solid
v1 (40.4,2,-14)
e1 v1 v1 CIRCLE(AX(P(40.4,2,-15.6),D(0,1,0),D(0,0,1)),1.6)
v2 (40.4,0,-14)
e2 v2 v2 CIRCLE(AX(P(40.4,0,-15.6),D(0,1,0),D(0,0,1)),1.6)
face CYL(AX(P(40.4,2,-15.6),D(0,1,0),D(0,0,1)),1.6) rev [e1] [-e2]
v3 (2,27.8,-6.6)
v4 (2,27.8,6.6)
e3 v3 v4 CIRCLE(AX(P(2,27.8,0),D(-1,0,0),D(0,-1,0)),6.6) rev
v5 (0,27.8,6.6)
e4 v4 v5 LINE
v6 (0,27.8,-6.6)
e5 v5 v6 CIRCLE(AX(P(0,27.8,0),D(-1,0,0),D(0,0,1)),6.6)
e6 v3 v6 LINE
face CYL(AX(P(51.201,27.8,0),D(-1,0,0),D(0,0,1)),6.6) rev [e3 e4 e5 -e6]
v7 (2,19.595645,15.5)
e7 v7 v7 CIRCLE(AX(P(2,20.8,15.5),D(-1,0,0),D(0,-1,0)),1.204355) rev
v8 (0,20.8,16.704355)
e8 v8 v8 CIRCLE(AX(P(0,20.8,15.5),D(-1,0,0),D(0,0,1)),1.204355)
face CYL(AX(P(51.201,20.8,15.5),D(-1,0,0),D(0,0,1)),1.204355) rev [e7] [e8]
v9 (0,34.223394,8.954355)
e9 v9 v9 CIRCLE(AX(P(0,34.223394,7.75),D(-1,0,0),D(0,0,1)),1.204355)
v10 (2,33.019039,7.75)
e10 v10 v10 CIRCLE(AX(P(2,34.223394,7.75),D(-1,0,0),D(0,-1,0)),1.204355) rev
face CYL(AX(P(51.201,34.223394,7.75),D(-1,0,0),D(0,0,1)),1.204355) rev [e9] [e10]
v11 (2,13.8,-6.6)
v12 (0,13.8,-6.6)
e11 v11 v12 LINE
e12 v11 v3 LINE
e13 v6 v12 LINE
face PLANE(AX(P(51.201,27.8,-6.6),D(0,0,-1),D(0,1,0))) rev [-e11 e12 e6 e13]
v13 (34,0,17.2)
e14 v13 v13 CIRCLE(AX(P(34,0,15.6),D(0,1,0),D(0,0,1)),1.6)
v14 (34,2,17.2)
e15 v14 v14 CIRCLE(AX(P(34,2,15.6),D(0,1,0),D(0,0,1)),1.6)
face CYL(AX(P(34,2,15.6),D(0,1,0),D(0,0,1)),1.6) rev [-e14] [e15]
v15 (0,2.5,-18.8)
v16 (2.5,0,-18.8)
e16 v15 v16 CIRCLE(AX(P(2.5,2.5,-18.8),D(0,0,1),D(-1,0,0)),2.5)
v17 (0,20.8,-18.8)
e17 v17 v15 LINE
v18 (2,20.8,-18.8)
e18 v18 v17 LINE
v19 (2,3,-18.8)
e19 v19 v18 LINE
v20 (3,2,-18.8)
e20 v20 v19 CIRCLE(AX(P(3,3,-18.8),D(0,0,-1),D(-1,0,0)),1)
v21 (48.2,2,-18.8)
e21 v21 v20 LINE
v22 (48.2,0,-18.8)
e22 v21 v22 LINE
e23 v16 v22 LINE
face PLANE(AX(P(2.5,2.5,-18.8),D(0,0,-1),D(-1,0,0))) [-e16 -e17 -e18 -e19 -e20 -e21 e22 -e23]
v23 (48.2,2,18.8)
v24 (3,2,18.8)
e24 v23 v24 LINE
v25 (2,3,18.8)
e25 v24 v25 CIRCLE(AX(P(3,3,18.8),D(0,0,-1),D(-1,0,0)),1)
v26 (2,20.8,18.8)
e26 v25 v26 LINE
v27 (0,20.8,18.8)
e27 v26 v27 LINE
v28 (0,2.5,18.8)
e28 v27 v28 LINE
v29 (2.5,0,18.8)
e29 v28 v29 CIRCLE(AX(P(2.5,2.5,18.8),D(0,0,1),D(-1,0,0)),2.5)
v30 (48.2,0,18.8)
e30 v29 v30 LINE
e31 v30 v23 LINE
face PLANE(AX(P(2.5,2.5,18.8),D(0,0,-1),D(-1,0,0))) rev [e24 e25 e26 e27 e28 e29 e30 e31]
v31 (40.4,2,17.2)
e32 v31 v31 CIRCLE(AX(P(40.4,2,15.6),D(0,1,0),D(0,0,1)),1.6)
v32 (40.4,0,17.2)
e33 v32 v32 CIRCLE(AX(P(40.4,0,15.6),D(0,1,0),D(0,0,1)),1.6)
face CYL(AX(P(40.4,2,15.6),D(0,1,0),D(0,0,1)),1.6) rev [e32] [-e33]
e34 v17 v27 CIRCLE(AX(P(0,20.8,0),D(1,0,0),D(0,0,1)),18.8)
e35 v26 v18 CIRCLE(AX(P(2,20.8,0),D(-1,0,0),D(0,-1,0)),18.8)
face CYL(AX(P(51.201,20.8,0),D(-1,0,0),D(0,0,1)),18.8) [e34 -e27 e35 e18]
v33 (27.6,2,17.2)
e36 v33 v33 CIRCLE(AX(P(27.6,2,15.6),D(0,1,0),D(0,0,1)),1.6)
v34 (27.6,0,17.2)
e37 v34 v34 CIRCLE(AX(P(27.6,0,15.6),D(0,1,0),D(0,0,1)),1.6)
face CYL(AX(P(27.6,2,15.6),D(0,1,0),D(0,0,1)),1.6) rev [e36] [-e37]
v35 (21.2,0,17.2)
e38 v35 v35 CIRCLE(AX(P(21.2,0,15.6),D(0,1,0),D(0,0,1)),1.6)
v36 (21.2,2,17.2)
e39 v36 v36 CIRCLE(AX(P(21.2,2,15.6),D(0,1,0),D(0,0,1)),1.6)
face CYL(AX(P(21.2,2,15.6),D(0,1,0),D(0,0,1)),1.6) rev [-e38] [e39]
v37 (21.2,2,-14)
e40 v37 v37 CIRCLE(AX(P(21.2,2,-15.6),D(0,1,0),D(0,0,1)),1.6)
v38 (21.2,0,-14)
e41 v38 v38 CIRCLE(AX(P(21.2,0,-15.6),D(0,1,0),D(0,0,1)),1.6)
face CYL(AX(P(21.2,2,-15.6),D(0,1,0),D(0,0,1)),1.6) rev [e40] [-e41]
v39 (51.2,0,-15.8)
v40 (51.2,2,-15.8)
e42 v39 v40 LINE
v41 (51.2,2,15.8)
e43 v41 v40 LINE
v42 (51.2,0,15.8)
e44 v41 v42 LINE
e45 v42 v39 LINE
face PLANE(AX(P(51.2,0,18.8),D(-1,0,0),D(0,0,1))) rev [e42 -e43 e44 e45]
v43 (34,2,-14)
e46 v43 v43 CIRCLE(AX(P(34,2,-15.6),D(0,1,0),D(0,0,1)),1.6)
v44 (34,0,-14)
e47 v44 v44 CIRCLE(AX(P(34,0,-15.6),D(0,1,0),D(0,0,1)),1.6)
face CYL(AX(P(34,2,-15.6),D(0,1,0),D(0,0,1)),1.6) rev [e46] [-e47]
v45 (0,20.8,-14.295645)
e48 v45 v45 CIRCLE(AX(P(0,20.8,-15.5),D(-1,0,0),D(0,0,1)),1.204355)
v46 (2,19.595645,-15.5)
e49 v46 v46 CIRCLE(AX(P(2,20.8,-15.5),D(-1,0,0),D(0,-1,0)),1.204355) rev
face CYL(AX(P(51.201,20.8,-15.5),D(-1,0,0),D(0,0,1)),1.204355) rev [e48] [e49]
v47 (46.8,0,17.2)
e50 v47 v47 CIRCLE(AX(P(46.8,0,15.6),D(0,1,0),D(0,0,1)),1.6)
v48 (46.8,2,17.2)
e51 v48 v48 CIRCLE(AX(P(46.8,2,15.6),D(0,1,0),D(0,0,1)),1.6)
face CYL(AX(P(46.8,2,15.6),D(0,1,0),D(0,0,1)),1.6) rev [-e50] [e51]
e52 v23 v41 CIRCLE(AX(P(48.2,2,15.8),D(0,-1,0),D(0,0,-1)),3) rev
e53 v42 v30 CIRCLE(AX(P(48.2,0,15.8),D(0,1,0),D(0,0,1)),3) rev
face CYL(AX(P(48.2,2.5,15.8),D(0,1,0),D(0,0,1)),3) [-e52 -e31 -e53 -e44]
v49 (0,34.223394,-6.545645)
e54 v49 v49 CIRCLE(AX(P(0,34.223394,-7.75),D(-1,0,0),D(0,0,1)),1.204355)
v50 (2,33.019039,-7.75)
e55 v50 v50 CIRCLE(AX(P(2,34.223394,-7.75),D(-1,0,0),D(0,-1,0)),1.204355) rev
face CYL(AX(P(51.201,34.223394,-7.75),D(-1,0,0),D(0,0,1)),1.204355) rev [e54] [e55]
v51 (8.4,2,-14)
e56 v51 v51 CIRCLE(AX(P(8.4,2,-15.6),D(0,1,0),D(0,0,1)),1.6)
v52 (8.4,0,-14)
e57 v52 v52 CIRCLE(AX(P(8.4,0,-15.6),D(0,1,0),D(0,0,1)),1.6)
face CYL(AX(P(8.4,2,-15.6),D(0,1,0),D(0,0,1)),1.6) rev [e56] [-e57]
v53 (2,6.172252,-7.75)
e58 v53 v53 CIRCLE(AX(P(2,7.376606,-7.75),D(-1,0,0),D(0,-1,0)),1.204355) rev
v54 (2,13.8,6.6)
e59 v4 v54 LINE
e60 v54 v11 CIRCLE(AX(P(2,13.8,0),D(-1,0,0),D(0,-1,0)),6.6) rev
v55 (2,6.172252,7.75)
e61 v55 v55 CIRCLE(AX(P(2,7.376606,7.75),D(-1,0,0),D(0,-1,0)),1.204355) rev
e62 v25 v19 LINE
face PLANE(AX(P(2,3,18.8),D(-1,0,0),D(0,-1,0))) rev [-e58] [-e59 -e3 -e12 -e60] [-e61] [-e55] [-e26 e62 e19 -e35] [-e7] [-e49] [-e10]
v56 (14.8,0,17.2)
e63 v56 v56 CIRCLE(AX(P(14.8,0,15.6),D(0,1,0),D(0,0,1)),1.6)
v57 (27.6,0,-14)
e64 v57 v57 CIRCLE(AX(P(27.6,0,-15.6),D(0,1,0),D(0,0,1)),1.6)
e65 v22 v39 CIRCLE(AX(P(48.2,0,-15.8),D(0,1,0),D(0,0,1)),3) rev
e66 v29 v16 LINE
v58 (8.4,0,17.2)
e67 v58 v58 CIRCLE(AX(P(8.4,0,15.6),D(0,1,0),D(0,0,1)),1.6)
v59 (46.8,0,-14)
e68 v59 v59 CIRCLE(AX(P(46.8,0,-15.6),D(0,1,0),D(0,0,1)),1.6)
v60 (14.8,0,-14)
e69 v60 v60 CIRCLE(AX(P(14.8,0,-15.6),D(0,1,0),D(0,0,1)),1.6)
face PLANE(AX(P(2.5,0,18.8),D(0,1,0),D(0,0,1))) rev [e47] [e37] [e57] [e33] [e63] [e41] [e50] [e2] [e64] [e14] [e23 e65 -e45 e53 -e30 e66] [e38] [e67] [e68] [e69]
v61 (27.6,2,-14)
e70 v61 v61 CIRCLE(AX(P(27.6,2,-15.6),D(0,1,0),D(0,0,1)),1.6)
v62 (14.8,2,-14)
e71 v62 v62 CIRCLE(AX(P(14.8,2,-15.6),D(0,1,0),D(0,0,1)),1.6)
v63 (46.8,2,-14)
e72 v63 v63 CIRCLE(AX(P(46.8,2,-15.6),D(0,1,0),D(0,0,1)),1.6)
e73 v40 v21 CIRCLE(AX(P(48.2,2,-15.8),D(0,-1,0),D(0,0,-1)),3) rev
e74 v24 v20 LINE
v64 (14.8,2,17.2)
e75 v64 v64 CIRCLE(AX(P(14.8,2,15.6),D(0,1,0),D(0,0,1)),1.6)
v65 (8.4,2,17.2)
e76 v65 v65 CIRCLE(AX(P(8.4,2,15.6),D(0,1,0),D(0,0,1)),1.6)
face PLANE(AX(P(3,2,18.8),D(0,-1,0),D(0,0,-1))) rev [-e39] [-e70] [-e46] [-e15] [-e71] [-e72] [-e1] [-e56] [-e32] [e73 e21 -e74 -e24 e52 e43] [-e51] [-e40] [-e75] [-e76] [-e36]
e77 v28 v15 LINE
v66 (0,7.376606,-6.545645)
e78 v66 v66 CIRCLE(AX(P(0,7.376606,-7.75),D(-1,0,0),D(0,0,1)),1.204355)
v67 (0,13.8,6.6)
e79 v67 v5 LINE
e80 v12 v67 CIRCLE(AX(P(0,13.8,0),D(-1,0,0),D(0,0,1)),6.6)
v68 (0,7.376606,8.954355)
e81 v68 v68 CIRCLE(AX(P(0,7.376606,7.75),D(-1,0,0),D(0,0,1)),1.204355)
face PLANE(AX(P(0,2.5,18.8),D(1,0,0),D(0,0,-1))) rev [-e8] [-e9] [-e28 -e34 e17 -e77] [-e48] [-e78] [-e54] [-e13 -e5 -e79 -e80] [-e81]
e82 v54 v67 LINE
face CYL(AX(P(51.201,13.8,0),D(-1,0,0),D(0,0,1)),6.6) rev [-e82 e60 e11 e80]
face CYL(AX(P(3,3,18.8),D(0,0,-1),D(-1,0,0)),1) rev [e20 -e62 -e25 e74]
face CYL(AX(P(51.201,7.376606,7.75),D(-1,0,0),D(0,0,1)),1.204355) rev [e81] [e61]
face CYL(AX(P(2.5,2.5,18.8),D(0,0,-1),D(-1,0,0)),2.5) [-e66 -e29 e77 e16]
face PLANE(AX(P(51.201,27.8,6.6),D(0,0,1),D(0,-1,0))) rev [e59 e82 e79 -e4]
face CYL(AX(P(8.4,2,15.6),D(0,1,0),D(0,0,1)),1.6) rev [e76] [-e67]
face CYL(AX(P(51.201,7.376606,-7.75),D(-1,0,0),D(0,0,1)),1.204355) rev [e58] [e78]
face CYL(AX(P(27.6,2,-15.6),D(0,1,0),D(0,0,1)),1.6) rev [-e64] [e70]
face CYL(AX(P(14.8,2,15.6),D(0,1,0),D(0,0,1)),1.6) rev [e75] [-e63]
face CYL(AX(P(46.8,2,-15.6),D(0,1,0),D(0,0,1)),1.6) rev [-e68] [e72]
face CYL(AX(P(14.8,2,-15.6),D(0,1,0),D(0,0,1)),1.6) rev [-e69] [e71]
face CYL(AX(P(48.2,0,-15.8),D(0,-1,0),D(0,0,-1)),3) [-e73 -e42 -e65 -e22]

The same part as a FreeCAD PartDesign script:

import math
import FreeCAD as App
import Part
import Sketcher
Q = App.Units.Quantity


def edges_at(feature, points):
    """Names of the edges that pass closest to the given points."""
    edges = feature.Shape.Edges
    near = lambda p: min(range(len(edges)), key=lambda i: edges[i].distToShape(Part.Vertex(*p))[0])
    return sorted({f"Edge{near(p) + 1}" for p in points})

doc = App.newDocument("Part")
body = doc.addObject("PartDesign::Body", "Body")

# Sketch on XY plane
sketch1 = doc.addObject("Sketcher::SketchObject", "Sketch")
body.addObject(sketch1)
sketch1.AttachmentSupport = (doc.XY_Plane, [""])
sketch1.MapMode = "FlatFace"
sketch1.addGeometry([
    Part.LineSegment(App.Vector(2.5, 0, 0), App.Vector(51.2, 0, 0)),  # 0
    Part.LineSegment(App.Vector(51.2, 0, 0), App.Vector(51.2, 2, 0)),  # 1
    Part.LineSegment(App.Vector(51.2, 2, 0), App.Vector(3, 2, 0)),  # 2
    Part.ArcOfCircle(Part.Circle(App.Vector(3, 3, 0), App.Vector(0, 0, 1), 1), math.radians(-180), math.radians(-90)),  # 3
    Part.LineSegment(App.Vector(2, 3, 0), App.Vector(2, 39.6, 0)),  # 4
    Part.LineSegment(App.Vector(2, 39.6, 0), App.Vector(0, 39.6, 0)),  # 5
    Part.LineSegment(App.Vector(0, 39.6, 0), App.Vector(0, 2.5, 0)),  # 6
    Part.ArcOfCircle(Part.Circle(App.Vector(2.5, 2.5, 0), App.Vector(0, 0, 1), 2.5), math.radians(180), math.radians(270)),  # 7
], False)
sketch1.addConstraint([
    Sketcher.Constraint("Coincident", 0, 2, 1, 1),
    Sketcher.Constraint("Coincident", 1, 2, 2, 1),
    Sketcher.Constraint("Tangent", 2, 2, 3, 2),
    Sketcher.Constraint("Tangent", 3, 1, 4, 1),
    Sketcher.Constraint("Coincident", 4, 2, 5, 1),
    Sketcher.Constraint("Coincident", 5, 2, 6, 1),
    Sketcher.Constraint("Tangent", 6, 2, 7, 1),
    Sketcher.Constraint("Tangent", 7, 2, 0, 1),
    Sketcher.Constraint("Horizontal", 0),
    Sketcher.Constraint("Vertical", 1),
    Sketcher.Constraint("Horizontal", 2),
    Sketcher.Constraint("Vertical", 4),
    Sketcher.Constraint("Horizontal", 5),
    Sketcher.Constraint("Vertical", 6),
    Sketcher.Constraint("PointOnObject", 0, 2, -1),
    Sketcher.Constraint("PointOnObject", 5, 2, -2),
    Sketcher.Constraint("Equal", 5, 1),
    Sketcher.Constraint("Radius", 3, Q("1 mm")),
    Sketcher.Constraint("Radius", 7, Q("2.5 mm")),
    Sketcher.Constraint("DistanceX", 5, 2, 5, 1, Q("2 mm")),
    Sketcher.Constraint("DistanceX", 0, 1, 0, 2, Q("48.7 mm")),
    Sketcher.Constraint("DistanceY", 4, 1, 4, 2, Q("36.6 mm")),
])
pad1 = doc.addObject("PartDesign::Pad", "Pad")
body.addObject(pad1)
pad1.Profile = sketch1
pad1.Length = 37.6
pad1.Midplane = True

# Sketch on YZ plane
sketch2 = doc.addObject("Sketcher::SketchObject", "Sketch001")
body.addObject(sketch2)
sketch2.AttachmentSupport = (doc.YZ_Plane, [""])
sketch2.MapMode = "FlatFace"
sketch2.AttachmentOffset = App.Placement(App.Vector(0, 0, 2), App.Rotation())
sketch2.addGeometry([
    Part.Circle(App.Vector(20.8, 15.5, 0), App.Vector(0, 0, 1), 1.204355),  # 0
    Part.Circle(App.Vector(7.376606, 7.75, 0), App.Vector(0, 0, 1), 1.204355),  # 1
    Part.Circle(App.Vector(7.376606, -7.75, 0), App.Vector(0, 0, 1), 1.204355),  # 2
    Part.Circle(App.Vector(20.8, -15.5, 0), App.Vector(0, 0, 1), 1.204355),  # 3
    Part.Circle(App.Vector(34.223394, -7.75, 0), App.Vector(0, 0, 1), 1.204355),  # 4
    Part.Circle(App.Vector(34.223394, 7.75, 0), App.Vector(0, 0, 1), 1.204355),  # 5
    Part.LineSegment(App.Vector(13.8, 6.6, 0), App.Vector(27.8, 6.6, 0)),  # 6
    Part.ArcOfCircle(Part.Circle(App.Vector(27.8, 0, 0), App.Vector(0, 0, 1), 6.6), math.radians(-90), math.radians(90)),  # 7
    Part.LineSegment(App.Vector(27.8, -6.6, 0), App.Vector(13.8, -6.6, 0)),  # 8
    Part.ArcOfCircle(Part.Circle(App.Vector(13.8, 0, 0), App.Vector(0, 0, 1), 6.6), math.radians(90), math.radians(270)),  # 9
    Part.LineSegment(App.Vector(40.1, -18.8, 0), App.Vector(20.8, -18.8, 0)),  # 10
    Part.ArcOfCircle(Part.Circle(App.Vector(20.8, 0, 0), App.Vector(0, 0, 1), 18.8), math.radians(-90), math.radians(90)),  # 11
    Part.LineSegment(App.Vector(20.8, 18.8, 0), App.Vector(40.1, 18.8, 0)),  # 12
    Part.LineSegment(App.Vector(40.1, 18.8, 0), App.Vector(40.1, -18.8, 0)),  # 13
], False)
sketch2.addConstraint([
    Sketcher.Constraint("Tangent", 6, 2, 7, 2),
    Sketcher.Constraint("Tangent", 7, 1, 8, 1),
    Sketcher.Constraint("Tangent", 8, 2, 9, 2),
    Sketcher.Constraint("Tangent", 9, 1, 6, 1),
    Sketcher.Constraint("Tangent", 10, 2, 11, 1),
    Sketcher.Constraint("Tangent", 11, 2, 12, 1),
    Sketcher.Constraint("Coincident", 12, 2, 13, 1),
    Sketcher.Constraint("Coincident", 13, 2, 10, 1),
    Sketcher.Constraint("Horizontal", 6),
    Sketcher.Constraint("Horizontal", 8),
    Sketcher.Constraint("Horizontal", 10),
    Sketcher.Constraint("Horizontal", 12),
    Sketcher.Constraint("Vertical", 13),
    Sketcher.Constraint("Equal", 0, 1),
    Sketcher.Constraint("Equal", 1, 2),
    Sketcher.Constraint("Equal", 2, 3),
    Sketcher.Constraint("Equal", 3, 4),
    Sketcher.Constraint("Equal", 4, 5),
    Sketcher.Constraint("Symmetric", 1, 3, 2, 3, -1),
    Sketcher.Constraint("Symmetric", 0, 3, 3, 3, -1),
    Sketcher.Constraint("Symmetric", 4, 3, 5, 3, -1),
    Sketcher.Constraint("PointOnObject", 7, 3, -1),
    Sketcher.Constraint("PointOnObject", 11, 3, -1),
    Sketcher.Constraint("Horizontal", 2, 3, 4, 3),
    Sketcher.Constraint("Vertical", 3, 3, 11, 3),
    Sketcher.Constraint("Radius", 7, Q("6.6 mm")),
    Sketcher.Constraint("Radius", 11, Q("18.8 mm")),
    Sketcher.Constraint("DistanceX", 6, 1, 6, 2, Q("14 mm")),
    Sketcher.Constraint("DistanceX", 10, 2, 10, 1, Q("19.3 mm")),
    Sketcher.Constraint("DistanceY", 3, 3, 0, 3, Q("31 mm")),
    Sketcher.Constraint("DistanceX", 0, 3, 7, 3, Q("7 mm")),
    Sketcher.Constraint("DistanceX", -1, 1, 0, 3, Q("20.8 mm")),
    Sketcher.Constraint("DistanceY", 2, 3, 1, 3, Q("15.5 mm")),
    Sketcher.Constraint("Diameter", 0, Q("2.408709 mm")),
    Sketcher.Constraint("DistanceX", -1, 1, 1, 3, Q("7.376606 mm")),
    Sketcher.Constraint("DistanceX", -1, 1, 4, 3, Q("34.223394 mm")),
])
pocket1 = doc.addObject("PartDesign::Pocket", "Pocket")
body.addObject(pocket1)
pocket1.Profile = sketch2
pocket1.Length = 2
doc.recompute()

fillet = doc.addObject("PartDesign::Fillet", "Fillet")
body.addObject(fillet)
fillet.Base = (pocket1, edges_at(pocket1, [(51.2, 1, -18.8), (51.2, 1, 18.8)]))
fillet.Radius = 3

# Sketch on XZ plane
sketch3 = doc.addObject("Sketcher::SketchObject", "Sketch002")
body.addObject(sketch3)
sketch3.AttachmentSupport = (doc.XZ_Plane, [""])
sketch3.MapMode = "FlatFace"
sketch3.AttachmentOffset = App.Placement(App.Vector(0, 0, -2), App.Rotation())
sketch3.addGeometry([
    Part.Circle(App.Vector(8.4, -15.6, 0), App.Vector(0, 0, 1), 1.6),  # 0
    Part.Circle(App.Vector(8.4, 15.6, 0), App.Vector(0, 0, 1), 1.6),  # 1
    Part.Circle(App.Vector(14.8, -15.6, 0), App.Vector(0, 0, 1), 1.6),  # 2
    Part.Circle(App.Vector(14.8, 15.6, 0), App.Vector(0, 0, 1), 1.6),  # 3
    Part.Circle(App.Vector(21.2, -15.6, 0), App.Vector(0, 0, 1), 1.6),  # 4
    Part.Circle(App.Vector(21.2, 15.6, 0), App.Vector(0, 0, 1), 1.6),  # 5
    Part.Circle(App.Vector(27.6, -15.6, 0), App.Vector(0, 0, 1), 1.6),  # 6
    Part.Circle(App.Vector(27.6, 15.6, 0), App.Vector(0, 0, 1), 1.6),  # 7
    Part.Circle(App.Vector(34, -15.6, 0), App.Vector(0, 0, 1), 1.6),  # 8
    Part.Circle(App.Vector(34, 15.6, 0), App.Vector(0, 0, 1), 1.6),  # 9
    Part.Circle(App.Vector(40.4, -15.6, 0), App.Vector(0, 0, 1), 1.6),  # 10
    Part.Circle(App.Vector(40.4, 15.6, 0), App.Vector(0, 0, 1), 1.6),  # 11
    Part.Circle(App.Vector(46.8, -15.6, 0), App.Vector(0, 0, 1), 1.6),  # 12
    Part.Circle(App.Vector(46.8, 15.6, 0), App.Vector(0, 0, 1), 1.6),  # 13
], False)
sketch3.addConstraint([
    Sketcher.Constraint("Equal", 0, 1),
    Sketcher.Constraint("Equal", 1, 2),
    Sketcher.Constraint("Equal", 2, 3),
    Sketcher.Constraint("Equal", 3, 4),
    Sketcher.Constraint("Equal", 4, 5),
    Sketcher.Constraint("Equal", 5, 6),
    Sketcher.Constraint("Equal", 6, 7),
    Sketcher.Constraint("Equal", 7, 8),
    Sketcher.Constraint("Equal", 8, 9),
    Sketcher.Constraint("Equal", 9, 10),
    Sketcher.Constraint("Equal", 10, 11),
    Sketcher.Constraint("Equal", 11, 12),
    Sketcher.Constraint("Equal", 12, 13),
    Sketcher.Constraint("Symmetric", 0, 3, 1, 3, -1),
    Sketcher.Constraint("Symmetric", 2, 3, 3, 3, -1),
    Sketcher.Constraint("Symmetric", 4, 3, 5, 3, -1),
    Sketcher.Constraint("Symmetric", 6, 3, 7, 3, -1),
    Sketcher.Constraint("Symmetric", 8, 3, 9, 3, -1),
    Sketcher.Constraint("Symmetric", 10, 3, 11, 3, -1),
    Sketcher.Constraint("Symmetric", 12, 3, 13, 3, -1),
    Sketcher.Constraint("Horizontal", 0, 3, 2, 3),
    Sketcher.Constraint("Horizontal", 2, 3, 4, 3),
    Sketcher.Constraint("Horizontal", 4, 3, 6, 3),
    Sketcher.Constraint("Horizontal", 6, 3, 8, 3),
    Sketcher.Constraint("Horizontal", 8, 3, 10, 3),
    Sketcher.Constraint("Horizontal", 10, 3, 12, 3),
    Sketcher.Constraint("Diameter", 0, Q("3.2 mm")),
    Sketcher.Constraint("DistanceX", -1, 1, 8, 3, Q("34 mm")),
    Sketcher.Constraint("DistanceX", -1, 1, 0, 3, Q("8.4 mm")),
    Sketcher.Constraint("DistanceY", 0, 3, -1, 1, Q("15.6 mm")),
    Sketcher.Constraint("DistanceX", -1, 1, 2, 3, Q("14.8 mm")),
    Sketcher.Constraint("DistanceX", -1, 1, 4, 3, Q("21.2 mm")),
    Sketcher.Constraint("DistanceX", -1, 1, 6, 3, Q("27.6 mm")),
    Sketcher.Constraint("DistanceX", -1, 1, 10, 3, Q("40.4 mm")),
    Sketcher.Constraint("DistanceX", -1, 1, 12, 3, Q("46.8 mm")),
])
doc.recompute()
hole = doc.addObject("PartDesign::Hole", "Hole")
body.addObject(hole)
hole.Profile = sketch3
hole.ThreadType = "None"
hole.Diameter = 3.2
hole.DepthType = "Dimension"
hole.Depth = 2
hole.DrillPoint = "Flat"
hole.Reversed = True

doc.recompute()
